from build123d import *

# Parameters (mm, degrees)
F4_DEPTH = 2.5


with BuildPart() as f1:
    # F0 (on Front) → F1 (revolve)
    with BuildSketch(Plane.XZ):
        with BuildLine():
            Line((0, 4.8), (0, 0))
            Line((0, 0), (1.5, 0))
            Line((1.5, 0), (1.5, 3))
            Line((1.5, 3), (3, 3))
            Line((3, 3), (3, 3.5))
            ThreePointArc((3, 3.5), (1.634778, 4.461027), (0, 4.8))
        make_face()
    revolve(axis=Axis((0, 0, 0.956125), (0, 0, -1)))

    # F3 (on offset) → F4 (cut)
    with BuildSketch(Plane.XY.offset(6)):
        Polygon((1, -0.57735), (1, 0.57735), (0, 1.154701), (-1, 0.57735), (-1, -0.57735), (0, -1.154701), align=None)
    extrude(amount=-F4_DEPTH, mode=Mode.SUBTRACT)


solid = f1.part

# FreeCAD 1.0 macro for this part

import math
import FreeCAD as App
import Part
import Sketcher
from FreeCAD import Vector

doc = App.newDocument("Part")
body = doc.addObject("PartDesign::Body", "Body")

# Sketch on XZ plane
sketch1 = doc.addObject("Sketcher::SketchObject", "Sketch")
body.addObject(sketch1)
sketch1.AttachmentSupport = (doc.XZ_Plane, [""])
sketch1.MapMode = "FlatFace"
sketch1.addGeometry([
    Part.LineSegment(Vector(0, 4.8, 0), Vector(0, 0, 0)),  # 0
    Part.LineSegment(Vector(0, 0, 0), Vector(1.5, 0, 0)),  # 1
    Part.LineSegment(Vector(1.5, 0, 0), Vector(1.5, 3, 0)),  # 2
    Part.LineSegment(Vector(1.5, 3, 0), Vector(3, 3, 0)),  # 3
    Part.LineSegment(Vector(3, 3, 0), Vector(3, 3.5, 0)),  # 4
    Part.ArcOfCircle(Part.Circle(Vector(0, 0.688463, 0), Vector(0, 0, 1), 4.111537), math.radians(43.142608), math.radians(90.000006)),  # 5
], False)
sketch1.addConstraint([
    Sketcher.Constraint("Coincident", 0, 2, 1, 1),
    Sketcher.Constraint("Coincident", 1, 2, 2, 1),
    Sketcher.Constraint("Coincident", 2, 2, 3, 1),
    Sketcher.Constraint("Coincident", 3, 2, 4, 1),
    Sketcher.Constraint("Coincident", 4, 2, 5, 1),
    Sketcher.Constraint("Coincident", 5, 2, 0, 1),
    Sketcher.Constraint("Vertical", 0),
    Sketcher.Constraint("Horizontal", 1),
    Sketcher.Constraint("Vertical", 2),
    Sketcher.Constraint("Horizontal", 3),
    Sketcher.Constraint("Vertical", 4),
    Sketcher.Constraint("Coincident", 0, 2, -1, 1),
    Sketcher.Constraint("PointOnObject", 5, 3, -2),
    Sketcher.Constraint("Equal", 1, 3),
    Sketcher.Constraint("DistanceY", 2, 1, 2, 2, 3.0),
    Sketcher.Constraint("DistanceX", 1, 1, 1, 2, 1.5),
    Sketcher.Constraint("DistanceY", 0, 2, 0, 1, 4.8),
    Sketcher.Constraint("DistanceY", 4, 1, 4, 2, 0.5),
])
revolution = doc.addObject("PartDesign::Revolution", "Revolution")
body.addObject(revolution)
revolution.Profile = sketch1
revolution.ReferenceAxis = (sketch1, ["V_Axis"])
revolution.Angle = 360

# Sketch on XY plane
sketch2 = doc.addObject("Sketcher::SketchObject", "Sketch001")
body.addObject(sketch2)
sketch2.AttachmentSupport = (doc.XY_Plane, [""])
sketch2.MapMode = "FlatFace"
sketch2.AttachmentOffset = App.Placement(Vector(0, 0, 6), App.Rotation())
sketch2.addGeometry([
    Part.LineSegment(Vector(1, -0.57735, 0), Vector(1, 0.57735, 0)),  # 0
    Part.LineSegment(Vector(1, 0.57735, 0), Vector(0, 1.154701, 0)),  # 1
    Part.LineSegment(Vector(0, 1.154701, 0), Vector(-1, 0.57735, 0)),  # 2
    Part.LineSegment(Vector(-1, 0.57735, 0), Vector(-1, -0.57735, 0)),  # 3
    Part.LineSegment(Vector(-1, -0.57735, 0), Vector(0, -1.154701, 0)),  # 4
    Part.LineSegment(Vector(0, -1.154701, 0), Vector(1, -0.57735, 0)),  # 5
], False)
sketch2.addConstraint([
    Sketcher.Constraint("Coincident", 0, 2, 1, 1),
    Sketcher.Constraint("Coincident", 1, 2, 2, 1),
    Sketcher.Constraint("Coincident", 2, 2, 3, 1),
    Sketcher.Constraint("Coincident", 3, 2, 4, 1),
    Sketcher.Constraint("Coincident", 4, 2, 5, 1),
    Sketcher.Constraint("Coincident", 5, 2, 0, 1),
    Sketcher.Constraint("Vertical", 0),
    Sketcher.Constraint("Vertical", 3),
    Sketcher.Constraint("Symmetric", 0, 2, 3, 2, -1, 1),
    Sketcher.Constraint("Symmetric", 1, 2, 4, 2, -1, 1),
    Sketcher.Constraint("PointOnObject", 1, 2, -2),
    Sketcher.Constraint("Parallel", 2, 5),
    Sketcher.Constraint("Horizontal", 0, 2, 2, 2),
    Sketcher.Constraint("DistanceX", -1, 1, 0, 2, 1.0),
    Sketcher.Constraint("DistanceY", 0, 1, 0, 2, 1.1547),
    Sketcher.Constraint("Distance", 1, 1.154701),
])
pocket1 = doc.addObject("PartDesign::Pocket", "Pocket")
body.addObject(pocket1)
pocket1.Profile = sketch2
pocket1.Length = 2.5

doc.recompute()
